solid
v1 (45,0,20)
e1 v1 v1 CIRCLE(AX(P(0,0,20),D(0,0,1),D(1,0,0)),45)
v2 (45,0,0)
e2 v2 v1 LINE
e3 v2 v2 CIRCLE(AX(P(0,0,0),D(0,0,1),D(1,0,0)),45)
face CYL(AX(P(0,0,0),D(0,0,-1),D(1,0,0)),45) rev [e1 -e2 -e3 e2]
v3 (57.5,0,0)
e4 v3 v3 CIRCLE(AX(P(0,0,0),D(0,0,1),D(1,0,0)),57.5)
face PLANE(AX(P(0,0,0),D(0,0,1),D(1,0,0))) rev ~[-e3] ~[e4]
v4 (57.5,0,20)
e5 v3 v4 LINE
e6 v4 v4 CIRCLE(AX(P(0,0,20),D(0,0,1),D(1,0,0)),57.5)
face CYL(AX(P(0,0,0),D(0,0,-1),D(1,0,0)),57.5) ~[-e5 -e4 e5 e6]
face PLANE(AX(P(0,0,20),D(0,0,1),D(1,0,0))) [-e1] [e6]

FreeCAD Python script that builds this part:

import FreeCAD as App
import Part
import Sketcher

V = App.Vector

doc = App.newDocument("Part")
body = doc.addObject("PartDesign::Body", "Body")

sketch1 = body.newObject("Sketcher::SketchObject", "Sketch")
sketch1.AttachmentSupport = (doc.getObject("XY_Plane"), [""])
sketch1.MapMode = "FlatFace"
sketch1.addGeometry(Part.Circle(V(0, 0, 0), V(0, 0, 1), 58), False)
sketch1.addGeometry(Part.Circle(V(0, 0, 0), V(0, 0, 1), 45), False)
sketch1.addConstraint(Sketcher.Constraint("Coincident", 0, 3, -1, 1))
sketch1.addConstraint(Sketcher.Constraint("Coincident", 1, 3, -1, 1))
sketch1.addConstraint(Sketcher.Constraint("Diameter", 0, 115.0))
sketch1.addConstraint(Sketcher.Constraint("Diameter", 1, 90.0))
pad1 = body.newObject("PartDesign::Pad", "Pad")
pad1.Profile = sketch1
pad1.Length = 20

doc.recompute()
